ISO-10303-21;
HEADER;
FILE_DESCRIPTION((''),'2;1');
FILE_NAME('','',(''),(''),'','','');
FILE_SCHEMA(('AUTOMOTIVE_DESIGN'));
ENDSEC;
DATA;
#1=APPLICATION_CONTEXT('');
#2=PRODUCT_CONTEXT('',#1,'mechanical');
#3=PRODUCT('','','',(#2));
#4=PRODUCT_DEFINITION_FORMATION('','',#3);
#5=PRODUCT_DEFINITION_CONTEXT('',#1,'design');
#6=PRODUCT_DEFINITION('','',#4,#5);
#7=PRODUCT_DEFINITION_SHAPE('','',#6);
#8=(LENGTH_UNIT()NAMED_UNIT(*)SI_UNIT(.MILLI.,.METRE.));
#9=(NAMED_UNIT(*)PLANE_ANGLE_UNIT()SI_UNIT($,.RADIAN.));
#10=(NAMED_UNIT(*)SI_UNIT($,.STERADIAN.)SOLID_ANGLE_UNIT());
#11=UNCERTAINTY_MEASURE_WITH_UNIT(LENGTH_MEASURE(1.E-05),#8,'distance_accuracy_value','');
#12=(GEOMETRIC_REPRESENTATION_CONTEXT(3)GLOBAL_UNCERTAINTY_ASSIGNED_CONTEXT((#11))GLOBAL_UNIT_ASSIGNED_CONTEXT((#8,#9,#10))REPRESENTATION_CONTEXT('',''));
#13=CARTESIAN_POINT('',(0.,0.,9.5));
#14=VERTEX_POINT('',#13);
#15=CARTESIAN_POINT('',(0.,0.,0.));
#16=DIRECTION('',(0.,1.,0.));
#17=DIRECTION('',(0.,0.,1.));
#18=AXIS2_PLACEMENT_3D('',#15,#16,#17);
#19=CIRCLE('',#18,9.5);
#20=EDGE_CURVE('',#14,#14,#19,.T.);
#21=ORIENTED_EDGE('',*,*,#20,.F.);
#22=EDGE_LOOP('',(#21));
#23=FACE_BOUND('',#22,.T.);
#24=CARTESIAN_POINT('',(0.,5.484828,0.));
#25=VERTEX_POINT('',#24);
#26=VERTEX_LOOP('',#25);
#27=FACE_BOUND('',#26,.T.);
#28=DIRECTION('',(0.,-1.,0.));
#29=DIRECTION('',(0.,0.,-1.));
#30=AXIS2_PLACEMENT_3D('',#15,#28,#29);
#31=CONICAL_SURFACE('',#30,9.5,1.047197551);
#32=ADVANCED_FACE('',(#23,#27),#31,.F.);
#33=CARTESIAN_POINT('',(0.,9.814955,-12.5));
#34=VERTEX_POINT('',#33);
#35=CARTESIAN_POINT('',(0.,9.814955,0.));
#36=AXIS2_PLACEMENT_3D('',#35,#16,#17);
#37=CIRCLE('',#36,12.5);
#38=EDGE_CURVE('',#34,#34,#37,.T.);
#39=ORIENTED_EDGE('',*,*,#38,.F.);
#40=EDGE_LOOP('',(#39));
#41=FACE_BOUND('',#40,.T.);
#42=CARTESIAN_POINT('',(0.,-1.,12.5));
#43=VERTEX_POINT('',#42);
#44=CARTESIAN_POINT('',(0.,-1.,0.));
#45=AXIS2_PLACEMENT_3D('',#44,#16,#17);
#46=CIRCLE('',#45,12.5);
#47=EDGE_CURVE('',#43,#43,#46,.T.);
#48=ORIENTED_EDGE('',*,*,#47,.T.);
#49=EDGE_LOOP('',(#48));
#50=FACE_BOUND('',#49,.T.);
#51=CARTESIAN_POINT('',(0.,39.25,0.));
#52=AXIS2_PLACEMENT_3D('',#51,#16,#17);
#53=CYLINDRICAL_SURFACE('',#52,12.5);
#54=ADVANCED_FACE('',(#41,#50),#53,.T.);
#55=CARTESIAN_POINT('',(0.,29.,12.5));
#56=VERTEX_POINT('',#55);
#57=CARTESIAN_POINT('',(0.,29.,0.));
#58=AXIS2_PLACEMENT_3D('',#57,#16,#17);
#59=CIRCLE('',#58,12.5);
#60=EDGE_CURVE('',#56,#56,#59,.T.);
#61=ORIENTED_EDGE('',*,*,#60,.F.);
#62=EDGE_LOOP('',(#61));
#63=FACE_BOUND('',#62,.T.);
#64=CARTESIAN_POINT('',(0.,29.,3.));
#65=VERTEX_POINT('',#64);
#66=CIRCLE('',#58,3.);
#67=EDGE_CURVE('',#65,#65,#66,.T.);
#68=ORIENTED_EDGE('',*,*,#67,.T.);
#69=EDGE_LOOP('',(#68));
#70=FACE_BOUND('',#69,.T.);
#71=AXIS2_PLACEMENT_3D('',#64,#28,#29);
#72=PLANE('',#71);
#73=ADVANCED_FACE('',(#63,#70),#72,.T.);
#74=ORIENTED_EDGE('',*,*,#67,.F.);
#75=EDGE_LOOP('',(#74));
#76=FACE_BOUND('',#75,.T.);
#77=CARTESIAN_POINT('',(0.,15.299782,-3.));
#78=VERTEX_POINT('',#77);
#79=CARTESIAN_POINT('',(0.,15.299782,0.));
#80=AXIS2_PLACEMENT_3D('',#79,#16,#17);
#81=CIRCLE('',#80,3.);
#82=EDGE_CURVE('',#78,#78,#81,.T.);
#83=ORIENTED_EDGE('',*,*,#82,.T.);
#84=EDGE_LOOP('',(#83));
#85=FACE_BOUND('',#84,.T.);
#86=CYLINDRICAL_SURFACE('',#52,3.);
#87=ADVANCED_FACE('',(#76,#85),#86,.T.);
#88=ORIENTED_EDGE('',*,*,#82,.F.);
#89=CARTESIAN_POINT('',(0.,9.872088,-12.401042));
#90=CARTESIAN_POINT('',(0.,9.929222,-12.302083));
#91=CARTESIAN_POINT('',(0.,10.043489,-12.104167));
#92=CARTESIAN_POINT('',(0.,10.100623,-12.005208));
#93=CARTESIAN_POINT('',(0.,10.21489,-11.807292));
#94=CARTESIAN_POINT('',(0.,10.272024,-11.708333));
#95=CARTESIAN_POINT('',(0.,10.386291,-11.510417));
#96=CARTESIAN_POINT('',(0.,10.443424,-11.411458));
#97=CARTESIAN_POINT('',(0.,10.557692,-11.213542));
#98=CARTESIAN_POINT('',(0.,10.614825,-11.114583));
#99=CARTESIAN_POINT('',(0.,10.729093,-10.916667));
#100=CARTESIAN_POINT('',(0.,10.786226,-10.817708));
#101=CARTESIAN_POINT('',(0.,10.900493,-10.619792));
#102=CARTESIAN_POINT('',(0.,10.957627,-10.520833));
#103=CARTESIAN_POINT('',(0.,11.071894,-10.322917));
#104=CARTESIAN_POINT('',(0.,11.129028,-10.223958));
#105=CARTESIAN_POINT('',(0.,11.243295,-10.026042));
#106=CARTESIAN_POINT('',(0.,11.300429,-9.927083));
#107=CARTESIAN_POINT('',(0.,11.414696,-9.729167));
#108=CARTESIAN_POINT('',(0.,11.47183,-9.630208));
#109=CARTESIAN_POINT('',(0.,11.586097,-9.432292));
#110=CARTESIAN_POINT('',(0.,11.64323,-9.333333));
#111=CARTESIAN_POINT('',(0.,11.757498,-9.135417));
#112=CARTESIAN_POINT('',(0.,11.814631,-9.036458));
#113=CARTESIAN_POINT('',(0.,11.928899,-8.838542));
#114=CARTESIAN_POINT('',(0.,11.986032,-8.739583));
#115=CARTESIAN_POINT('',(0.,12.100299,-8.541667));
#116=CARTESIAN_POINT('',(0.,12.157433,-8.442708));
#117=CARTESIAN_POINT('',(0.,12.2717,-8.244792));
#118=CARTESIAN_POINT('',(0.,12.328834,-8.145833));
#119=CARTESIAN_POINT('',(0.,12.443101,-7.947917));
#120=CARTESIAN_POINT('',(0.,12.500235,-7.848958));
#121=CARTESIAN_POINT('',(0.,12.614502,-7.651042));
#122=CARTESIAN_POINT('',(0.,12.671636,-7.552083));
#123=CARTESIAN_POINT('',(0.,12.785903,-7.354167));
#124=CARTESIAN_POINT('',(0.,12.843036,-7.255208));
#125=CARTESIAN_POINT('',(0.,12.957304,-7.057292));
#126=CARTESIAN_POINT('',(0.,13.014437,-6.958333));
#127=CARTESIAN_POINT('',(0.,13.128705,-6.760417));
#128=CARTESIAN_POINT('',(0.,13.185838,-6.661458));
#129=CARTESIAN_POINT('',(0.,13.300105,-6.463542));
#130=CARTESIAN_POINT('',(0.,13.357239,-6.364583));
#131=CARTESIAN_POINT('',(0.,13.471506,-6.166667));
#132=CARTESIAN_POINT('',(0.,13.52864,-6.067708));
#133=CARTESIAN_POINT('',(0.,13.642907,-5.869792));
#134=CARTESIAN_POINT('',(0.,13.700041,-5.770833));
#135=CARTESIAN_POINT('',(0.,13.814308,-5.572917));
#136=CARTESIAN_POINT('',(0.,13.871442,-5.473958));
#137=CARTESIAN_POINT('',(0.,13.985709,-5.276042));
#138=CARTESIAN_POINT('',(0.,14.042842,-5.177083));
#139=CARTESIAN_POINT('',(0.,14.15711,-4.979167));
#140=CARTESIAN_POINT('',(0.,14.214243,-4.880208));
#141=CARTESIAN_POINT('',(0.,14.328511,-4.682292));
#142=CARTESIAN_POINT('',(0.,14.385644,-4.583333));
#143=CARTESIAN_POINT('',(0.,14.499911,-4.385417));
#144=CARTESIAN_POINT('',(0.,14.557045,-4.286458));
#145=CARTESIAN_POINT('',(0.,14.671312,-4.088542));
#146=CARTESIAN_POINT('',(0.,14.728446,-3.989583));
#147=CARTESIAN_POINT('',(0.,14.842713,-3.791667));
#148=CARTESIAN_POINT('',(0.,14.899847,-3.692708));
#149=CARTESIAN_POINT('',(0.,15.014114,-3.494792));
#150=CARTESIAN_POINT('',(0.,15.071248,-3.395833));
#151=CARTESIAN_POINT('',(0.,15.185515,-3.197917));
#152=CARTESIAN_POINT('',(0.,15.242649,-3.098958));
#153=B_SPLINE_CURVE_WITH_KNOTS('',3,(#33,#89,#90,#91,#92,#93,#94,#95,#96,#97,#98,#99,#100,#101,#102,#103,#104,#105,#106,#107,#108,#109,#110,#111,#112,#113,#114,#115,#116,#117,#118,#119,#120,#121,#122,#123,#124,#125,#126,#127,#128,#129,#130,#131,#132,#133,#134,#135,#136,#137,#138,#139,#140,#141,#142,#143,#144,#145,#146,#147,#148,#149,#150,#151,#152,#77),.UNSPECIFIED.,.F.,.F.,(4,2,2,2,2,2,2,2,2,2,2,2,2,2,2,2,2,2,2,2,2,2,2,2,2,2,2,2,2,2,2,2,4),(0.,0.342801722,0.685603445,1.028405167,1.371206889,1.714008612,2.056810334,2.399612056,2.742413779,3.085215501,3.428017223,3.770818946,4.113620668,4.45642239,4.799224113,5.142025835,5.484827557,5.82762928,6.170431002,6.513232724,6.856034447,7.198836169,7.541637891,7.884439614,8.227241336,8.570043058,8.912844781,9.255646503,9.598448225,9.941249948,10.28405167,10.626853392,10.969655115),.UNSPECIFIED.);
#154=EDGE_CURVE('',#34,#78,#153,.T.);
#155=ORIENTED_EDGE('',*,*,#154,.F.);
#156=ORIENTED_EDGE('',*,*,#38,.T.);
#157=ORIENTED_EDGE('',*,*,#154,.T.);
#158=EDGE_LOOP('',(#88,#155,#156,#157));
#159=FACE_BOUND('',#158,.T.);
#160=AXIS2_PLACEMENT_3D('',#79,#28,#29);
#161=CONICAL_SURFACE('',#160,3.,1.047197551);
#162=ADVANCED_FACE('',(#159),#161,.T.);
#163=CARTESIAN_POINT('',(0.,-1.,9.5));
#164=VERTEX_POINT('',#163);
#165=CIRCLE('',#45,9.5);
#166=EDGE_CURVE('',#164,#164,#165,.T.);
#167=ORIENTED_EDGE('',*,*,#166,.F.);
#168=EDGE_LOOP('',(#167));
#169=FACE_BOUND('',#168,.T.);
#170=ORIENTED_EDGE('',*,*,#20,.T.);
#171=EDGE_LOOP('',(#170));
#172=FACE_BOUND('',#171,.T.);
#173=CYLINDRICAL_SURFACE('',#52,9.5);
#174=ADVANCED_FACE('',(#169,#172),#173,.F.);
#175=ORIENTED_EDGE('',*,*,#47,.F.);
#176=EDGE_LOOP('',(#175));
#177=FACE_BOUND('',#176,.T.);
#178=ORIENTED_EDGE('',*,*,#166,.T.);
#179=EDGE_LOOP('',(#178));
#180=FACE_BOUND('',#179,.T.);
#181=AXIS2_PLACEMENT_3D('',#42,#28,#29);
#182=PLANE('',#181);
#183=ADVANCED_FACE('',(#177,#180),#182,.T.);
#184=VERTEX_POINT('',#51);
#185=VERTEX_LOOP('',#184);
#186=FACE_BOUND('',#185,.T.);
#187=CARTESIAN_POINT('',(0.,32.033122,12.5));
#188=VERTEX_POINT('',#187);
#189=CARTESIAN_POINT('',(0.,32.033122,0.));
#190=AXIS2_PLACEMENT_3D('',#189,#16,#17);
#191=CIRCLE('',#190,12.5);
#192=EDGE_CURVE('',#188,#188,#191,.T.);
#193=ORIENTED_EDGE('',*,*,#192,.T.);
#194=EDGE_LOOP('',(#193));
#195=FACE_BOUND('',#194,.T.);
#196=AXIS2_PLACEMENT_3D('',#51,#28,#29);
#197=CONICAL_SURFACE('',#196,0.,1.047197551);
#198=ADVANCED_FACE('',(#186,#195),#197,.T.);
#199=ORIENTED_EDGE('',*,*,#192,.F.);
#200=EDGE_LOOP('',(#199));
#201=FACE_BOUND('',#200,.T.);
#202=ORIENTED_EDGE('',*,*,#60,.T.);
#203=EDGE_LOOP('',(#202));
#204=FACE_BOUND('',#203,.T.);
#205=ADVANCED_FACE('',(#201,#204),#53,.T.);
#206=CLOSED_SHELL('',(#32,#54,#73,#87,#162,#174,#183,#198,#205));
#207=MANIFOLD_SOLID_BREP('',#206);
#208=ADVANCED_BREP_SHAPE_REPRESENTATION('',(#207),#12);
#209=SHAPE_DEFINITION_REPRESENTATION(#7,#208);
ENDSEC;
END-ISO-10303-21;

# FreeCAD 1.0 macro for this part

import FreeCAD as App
import Part
import Sketcher

V = App.Vector
Q = App.Units.Quantity

doc = App.newDocument("Part")
body = doc.addObject("PartDesign::Body", "Body")

sketch1 = body.newObject("Sketcher::SketchObject", "Sketch")
sketch1.AttachmentSupport = (doc.getObject("YZ_Plane"), [""])
sketch1.MapMode = "FlatFace"
sketch1.addGeometry([
    Part.LineSegment(V(0, 9.5, 0), V(5.484828, 0, 0)),
    Part.LineSegment(V(5.484828, 0, 0), V(39.25, 0, 0)),
    Part.LineSegment(V(39.25, 0, 0), V(32.033122, 12.5, 0)),
    Part.LineSegment(V(32.033122, 12.5, 0), V(29, 12.5, 0)),
    Part.LineSegment(V(29, 12.5, 0), V(29, 3, 0)),
    Part.LineSegment(V(29, 3, 0), V(15.299782, 3, 0)),
    Part.LineSegment(V(15.299782, 3, 0), V(9.814955, 12.5, 0)),
    Part.LineSegment(V(9.814955, 12.5, 0), V(-1, 12.5, 0)),
    Part.LineSegment(V(-1, 12.5, 0), V(-1, 9.5, 0)),
    Part.LineSegment(V(-1, 9.5, 0), V(0, 9.5, 0)),
], False)
sketch1.addConstraint([
    Sketcher.Constraint("Coincident", 0, 2, 1, 1),
    Sketcher.Constraint("Coincident", 1, 2, 2, 1),
    Sketcher.Constraint("Coincident", 2, 2, 3, 1),
    Sketcher.Constraint("Coincident", 3, 2, 4, 1),
    Sketcher.Constraint("Coincident", 4, 2, 5, 1),
    Sketcher.Constraint("Coincident", 5, 2, 6, 1),
    Sketcher.Constraint("Coincident", 6, 2, 7, 1),
    Sketcher.Constraint("Coincident", 7, 2, 8, 1),
    Sketcher.Constraint("Coincident", 8, 2, 9, 1),
    Sketcher.Constraint("Coincident", 9, 2, 0, 1),
    Sketcher.Constraint("Horizontal", 1),
    Sketcher.Constraint("Horizontal", 3),
    Sketcher.Constraint("Vertical", 4),
    Sketcher.Constraint("Horizontal", 5),
    Sketcher.Constraint("Horizontal", 7),
    Sketcher.Constraint("Vertical", 8),
    Sketcher.Constraint("Horizontal", 9),
    Sketcher.Constraint("PointOnObject", 0, 2, -1),
    Sketcher.Constraint("PointOnObject", 9, 2, -2),
    Sketcher.Constraint("Parallel", 0, 2),
    Sketcher.Constraint("Parallel", 2, 6),
    Sketcher.Constraint("Horizontal", 3, 2, 6, 2),
    Sketcher.Constraint("Equal", 0, 6),
    Sketcher.Constraint("DistanceX", 9, 1, 9, 2, Q("1 mm")),
    Sketcher.Constraint("DistanceY", 8, 2, 8, 1, Q("3 mm")),
    Sketcher.Constraint("Angle", 0, Q("-60 deg")),
    Sketcher.Constraint("DistanceY", 4, 2, 4, 1, Q("9.5 mm")),
    Sketcher.Constraint("DistanceX", -1, 1, 3, 2, Q("29 mm")),
    Sketcher.Constraint("DistanceX", -1, 1, 1, 2, Q("39.25 mm")),
    Sketcher.Constraint("DistanceX", 5, 2, 5, 1, Q("13.700218 mm")),
])
revolution = body.newObject("PartDesign::Revolution", "Revolution")
revolution.Profile = sketch1
revolution.ReferenceAxis = (sketch1, ["H_Axis"])
revolution.Angle = 360

doc.recompute()
